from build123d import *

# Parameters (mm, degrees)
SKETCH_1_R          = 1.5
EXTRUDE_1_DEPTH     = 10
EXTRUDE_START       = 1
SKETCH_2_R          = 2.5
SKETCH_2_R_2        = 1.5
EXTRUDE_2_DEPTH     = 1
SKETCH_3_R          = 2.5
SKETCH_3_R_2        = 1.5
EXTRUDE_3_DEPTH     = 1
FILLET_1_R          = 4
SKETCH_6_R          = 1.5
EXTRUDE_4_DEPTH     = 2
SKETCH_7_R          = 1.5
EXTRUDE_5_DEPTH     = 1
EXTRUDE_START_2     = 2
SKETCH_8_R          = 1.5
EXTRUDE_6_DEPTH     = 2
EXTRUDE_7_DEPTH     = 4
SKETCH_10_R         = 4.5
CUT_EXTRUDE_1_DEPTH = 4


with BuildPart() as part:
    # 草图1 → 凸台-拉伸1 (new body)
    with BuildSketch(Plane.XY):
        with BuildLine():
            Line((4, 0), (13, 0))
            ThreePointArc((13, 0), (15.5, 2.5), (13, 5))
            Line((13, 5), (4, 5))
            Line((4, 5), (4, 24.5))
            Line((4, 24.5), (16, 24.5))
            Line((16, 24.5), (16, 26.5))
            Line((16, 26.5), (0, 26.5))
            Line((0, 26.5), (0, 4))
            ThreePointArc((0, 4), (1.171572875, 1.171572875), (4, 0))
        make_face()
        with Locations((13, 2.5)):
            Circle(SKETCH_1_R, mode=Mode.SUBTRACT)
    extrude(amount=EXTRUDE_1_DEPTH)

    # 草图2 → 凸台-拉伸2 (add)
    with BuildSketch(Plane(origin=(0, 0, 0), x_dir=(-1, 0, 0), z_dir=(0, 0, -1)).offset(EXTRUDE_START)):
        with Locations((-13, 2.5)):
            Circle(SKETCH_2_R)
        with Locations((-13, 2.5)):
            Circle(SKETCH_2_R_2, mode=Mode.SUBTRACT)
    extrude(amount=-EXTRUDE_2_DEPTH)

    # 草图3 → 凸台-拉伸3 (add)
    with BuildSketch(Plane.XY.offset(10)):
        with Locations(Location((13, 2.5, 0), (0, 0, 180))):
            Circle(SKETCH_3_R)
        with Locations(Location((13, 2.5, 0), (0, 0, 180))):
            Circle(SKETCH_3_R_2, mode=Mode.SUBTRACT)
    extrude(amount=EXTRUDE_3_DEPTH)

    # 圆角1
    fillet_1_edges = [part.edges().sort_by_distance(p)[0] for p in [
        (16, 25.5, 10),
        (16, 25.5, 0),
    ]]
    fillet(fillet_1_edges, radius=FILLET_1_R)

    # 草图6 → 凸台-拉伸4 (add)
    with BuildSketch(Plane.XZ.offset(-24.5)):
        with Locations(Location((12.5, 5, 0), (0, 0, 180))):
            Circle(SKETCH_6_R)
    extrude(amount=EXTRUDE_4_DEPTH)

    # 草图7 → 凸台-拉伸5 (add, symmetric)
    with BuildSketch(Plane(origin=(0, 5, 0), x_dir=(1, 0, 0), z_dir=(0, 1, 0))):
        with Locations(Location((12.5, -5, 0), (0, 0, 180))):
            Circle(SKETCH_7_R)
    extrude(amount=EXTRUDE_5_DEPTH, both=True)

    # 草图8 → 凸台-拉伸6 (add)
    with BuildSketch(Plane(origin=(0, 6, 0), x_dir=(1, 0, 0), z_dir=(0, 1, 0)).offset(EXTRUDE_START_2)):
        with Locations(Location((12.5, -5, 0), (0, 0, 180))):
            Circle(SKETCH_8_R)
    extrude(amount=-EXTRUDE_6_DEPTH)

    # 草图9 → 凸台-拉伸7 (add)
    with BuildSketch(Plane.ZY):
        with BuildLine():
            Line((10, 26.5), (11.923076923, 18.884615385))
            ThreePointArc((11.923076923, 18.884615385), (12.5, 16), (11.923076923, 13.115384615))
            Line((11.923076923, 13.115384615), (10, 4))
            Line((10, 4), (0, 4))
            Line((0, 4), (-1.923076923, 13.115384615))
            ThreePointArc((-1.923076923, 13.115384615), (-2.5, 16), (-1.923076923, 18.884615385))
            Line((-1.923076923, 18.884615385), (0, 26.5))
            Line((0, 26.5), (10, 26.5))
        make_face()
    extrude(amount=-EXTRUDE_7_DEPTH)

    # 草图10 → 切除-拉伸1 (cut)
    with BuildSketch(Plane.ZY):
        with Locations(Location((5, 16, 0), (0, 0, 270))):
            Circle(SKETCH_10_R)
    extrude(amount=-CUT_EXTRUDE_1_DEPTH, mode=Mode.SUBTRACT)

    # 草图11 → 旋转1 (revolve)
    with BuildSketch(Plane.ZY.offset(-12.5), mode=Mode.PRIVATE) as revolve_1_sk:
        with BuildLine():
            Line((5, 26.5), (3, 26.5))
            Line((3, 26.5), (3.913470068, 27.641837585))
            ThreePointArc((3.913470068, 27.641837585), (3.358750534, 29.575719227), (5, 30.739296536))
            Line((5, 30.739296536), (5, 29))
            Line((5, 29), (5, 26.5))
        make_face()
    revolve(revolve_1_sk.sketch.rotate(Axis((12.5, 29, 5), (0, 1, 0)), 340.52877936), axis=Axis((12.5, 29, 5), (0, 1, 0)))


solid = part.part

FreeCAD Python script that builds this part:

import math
import FreeCAD as App
import Part
import Sketcher

V = App.Vector
Q = App.Units.Quantity


def edges_at(feature, points):
    """Names of the edges that pass closest to the given points."""
    edges = feature.Shape.Edges
    near = lambda p: min(range(len(edges)), key=lambda i: edges[i].distToShape(Part.Vertex(*p))[0])
    return sorted({f"Edge{near(p) + 1}" for p in points})

doc = App.newDocument("Part")
body = doc.addObject("PartDesign::Body", "Body")

sketch1 = doc.addObject("Sketcher::SketchObject", "Sketch")
body.addObject(sketch1)
sketch1.AttachmentSupport = (doc.XY_Plane, [""])
sketch1.MapMode = "FlatFace"
sketch1.addGeometry(Part.LineSegment(V(4, 0, 0), V(13, 0, 0)), False)
sketch1.addGeometry(Part.ArcOfCircle(Part.Circle(V(13, 2.5, 0), V(0, 0, 1), 2.5), math.radians(-90), math.radians(90)), False)
sketch1.addGeometry(Part.LineSegment(V(13, 5, 0), V(4, 5, 0)), False)
sketch1.addGeometry(Part.LineSegment(V(4, 5, 0), V(4, 24.5, 0)), False)
sketch1.addGeometry(Part.LineSegment(V(4, 24.5, 0), V(16, 24.5, 0)), False)
sketch1.addGeometry(Part.LineSegment(V(16, 24.5, 0), V(16, 26.5, 0)), False)
sketch1.addGeometry(Part.LineSegment(V(16, 26.5, 0), V(0, 26.5, 0)), False)
sketch1.addGeometry(Part.LineSegment(V(0, 26.5, 0), V(0, 4, 0)), False)
sketch1.addGeometry(Part.ArcOfCircle(Part.Circle(V(4, 4, 0), V(0, 0, 1), 4), math.radians(180), math.radians(270)), False)
sketch1.addGeometry(Part.Circle(V(13, 2.5, 0), V(0, 0, 1), 1.5), False)
sketch1.addConstraint(Sketcher.Constraint("Tangent", 0, 2, 1, 1))
sketch1.addConstraint(Sketcher.Constraint("Tangent", 1, 2, 2, 1))
sketch1.addConstraint(Sketcher.Constraint("Coincident", 2, 2, 3, 1))
sketch1.addConstraint(Sketcher.Constraint("Coincident", 3, 2, 4, 1))
sketch1.addConstraint(Sketcher.Constraint("Coincident", 4, 2, 5, 1))
sketch1.addConstraint(Sketcher.Constraint("Coincident", 5, 2, 6, 1))
sketch1.addConstraint(Sketcher.Constraint("Coincident", 6, 2, 7, 1))
sketch1.addConstraint(Sketcher.Constraint("Tangent", 7, 2, 8, 1))
sketch1.addConstraint(Sketcher.Constraint("Tangent", 8, 2, 0, 1))
sketch1.addConstraint(Sketcher.Constraint("Horizontal", 0))
sketch1.addConstraint(Sketcher.Constraint("Horizontal", 2))
sketch1.addConstraint(Sketcher.Constraint("Vertical", 3))
sketch1.addConstraint(Sketcher.Constraint("Horizontal", 4))
sketch1.addConstraint(Sketcher.Constraint("Vertical", 5))
sketch1.addConstraint(Sketcher.Constraint("Horizontal", 6))
sketch1.addConstraint(Sketcher.Constraint("Vertical", 7))
sketch1.addConstraint(Sketcher.Constraint("Coincident", 9, 3, 1, 3))
sketch1.addConstraint(Sketcher.Constraint("PointOnObject", 0, 2, -1))
sketch1.addConstraint(Sketcher.Constraint("PointOnObject", 6, 2, -2))
sketch1.addConstraint(Sketcher.Constraint("Vertical", 8, 3, 2, 2))
sketch1.addConstraint(Sketcher.Constraint("Diameter", 9, Q("3 mm")))
sketch1.addConstraint(Sketcher.Constraint("Radius", 8, Q("4 mm")))
sketch1.addConstraint(Sketcher.Constraint("Radius", 1, Q("2.5 mm")))
sketch1.addConstraint(Sketcher.Constraint("DistanceX", 0, 1, 0, 2, Q("9 mm")))
sketch1.addConstraint(Sketcher.Constraint("DistanceX", 4, 1, 4, 2, Q("12 mm")))
sketch1.addConstraint(Sketcher.Constraint("DistanceY", 5, 1, 5, 2, Q("2 mm")))
sketch1.addConstraint(Sketcher.Constraint("DistanceY", 3, 1, 3, 2, Q("19.5 mm")))
pad1 = doc.addObject("PartDesign::Pad", "Pad")
body.addObject(pad1)
pad1.Profile = sketch1
pad1.Length = 10

sketch2 = doc.addObject("Sketcher::SketchObject", "Sketch001")
body.addObject(sketch2)
sketch2.AttachmentSupport = (doc.XY_Plane, [""])
sketch2.MapMode = "FlatFace"
sketch2.AttachmentOffset = App.Placement(V(0, 0, -1), App.Rotation())
sketch2.addGeometry(Part.Circle(V(13, 2.5, 0), V(0, 0, 1), 2.5), False)
sketch2.addGeometry(Part.Circle(V(13, 2.5, 0), V(0, 0, 1), 1.5), False)
sketch2.addConstraint(Sketcher.Constraint("Coincident", 1, 3, 0, 3))
sketch2.addConstraint(Sketcher.Constraint("Diameter", 0, Q("5 mm")))
sketch2.addConstraint(Sketcher.Constraint("Diameter", 1, Q("3 mm")))
sketch2.addConstraint(Sketcher.Constraint("DistanceX", -1, 1, 0, 3, Q("13 mm")))
sketch2.addConstraint(Sketcher.Constraint("DistanceY", -1, 1, 0, 3, Q("2.5 mm")))
pad2 = doc.addObject("PartDesign::Pad", "Pad001")
body.addObject(pad2)
pad2.Profile = sketch2
pad2.Length = 1

sketch3 = doc.addObject("Sketcher::SketchObject", "Sketch002")
body.addObject(sketch3)
sketch3.AttachmentSupport = (doc.XY_Plane, [""])
sketch3.MapMode = "FlatFace"
sketch3.AttachmentOffset = App.Placement(V(0, 0, 10), App.Rotation())
sketch3.addGeometry(Part.Circle(V(13, 2.5, 0), V(0, 0, 1), 2.5), False)
sketch3.addGeometry(Part.Circle(V(13, 2.5, 0), V(0, 0, 1), 1.5), False)
sketch3.addConstraint(Sketcher.Constraint("Coincident", 1, 3, 0, 3))
sketch3.addConstraint(Sketcher.Constraint("Diameter", 0, Q("5 mm")))
sketch3.addConstraint(Sketcher.Constraint("Diameter", 1, Q("3 mm")))
sketch3.addConstraint(Sketcher.Constraint("DistanceX", -1, 1, 0, 3, Q("13 mm")))
sketch3.addConstraint(Sketcher.Constraint("DistanceY", -1, 1, 0, 3, Q("2.5 mm")))
pad3 = doc.addObject("PartDesign::Pad", "Pad002")
body.addObject(pad3)
pad3.Profile = sketch3
pad3.Length = 1
doc.recompute()

fillet = doc.addObject("PartDesign::Fillet", "Fillet")
body.addObject(fillet)
fillet.Base = (pad3, edges_at(pad3, [(16, 25.5, 10), (16, 25.5, 0)]))
fillet.Radius = 4

sketch4 = doc.addObject("Sketcher::SketchObject", "Sketch003")
body.addObject(sketch4)
sketch4.AttachmentSupport = (doc.XZ_Plane, [""])
sketch4.MapMode = "FlatFace"
sketch4.AttachmentOffset = App.Placement(V(0, 0, -24.5), App.Rotation())
sketch4.addGeometry(Part.Circle(V(12.5, 5, 0), V(0, 0, 1), 1.5), False)
sketch4.addConstraint(Sketcher.Constraint("Diameter", 0, Q("3 mm")))
sketch4.addConstraint(Sketcher.Constraint("DistanceY", -1, 1, 0, 3, Q("5 mm")))
sketch4.addConstraint(Sketcher.Constraint("DistanceX", -1, 1, 0, 3, Q("12.5 mm")))
pad4 = doc.addObject("PartDesign::Pad", "Pad003")
body.addObject(pad4)
pad4.Profile = sketch4
pad4.Length = 2

sketch5 = doc.addObject("Sketcher::SketchObject", "Sketch004")
body.addObject(sketch5)
sketch5.AttachmentSupport = (doc.XZ_Plane, [""])
sketch5.MapMode = "FlatFace"
sketch5.AttachmentOffset = App.Placement(V(0, 0, -5), App.Rotation())
sketch5.addGeometry(Part.Circle(V(12.5, 5, 0), V(0, 0, 1), 1.5), False)
sketch5.addConstraint(Sketcher.Constraint("Diameter", 0, Q("3 mm")))
sketch5.addConstraint(Sketcher.Constraint("DistanceY", -1, 1, 0, 3, Q("5 mm")))
sketch5.addConstraint(Sketcher.Constraint("DistanceX", -1, 1, 0, 3, Q("12.5 mm")))
pad5 = doc.addObject("PartDesign::Pad", "Pad004")
body.addObject(pad5)
pad5.Profile = sketch5
pad5.Length = 2
pad5.Midplane = True

sketch6 = doc.addObject("Sketcher::SketchObject", "Sketch005")
body.addObject(sketch6)
sketch6.AttachmentSupport = (doc.XZ_Plane, [""])
sketch6.MapMode = "FlatFace"
sketch6.AttachmentOffset = App.Placement(V(0, 0, -8), App.Rotation())
sketch6.addGeometry(Part.Circle(V(12.5, 5, 0), V(0, 0, 1), 1.5), False)
sketch6.addConstraint(Sketcher.Constraint("Diameter", 0, Q("3 mm")))
sketch6.addConstraint(Sketcher.Constraint("DistanceY", -1, 1, 0, 3, Q("5 mm")))
sketch6.addConstraint(Sketcher.Constraint("DistanceX", -1, 1, 0, 3, Q("12.5 mm")))
pad6 = doc.addObject("PartDesign::Pad", "Pad005")
body.addObject(pad6)
pad6.Profile = sketch6
pad6.Length = 2

sketch7 = doc.addObject("Sketcher::SketchObject", "Sketch006")
body.addObject(sketch7)
sketch7.AttachmentSupport = (doc.YZ_Plane, [""])
sketch7.MapMode = "FlatFace"
sketch7.addGeometry(Part.LineSegment(V(18.884615, 11.923077, 0), V(26.5, 10, 0)), False)
sketch7.addGeometry(Part.LineSegment(V(26.5, 10, 0), V(26.5, 0, 0)), False)
sketch7.addGeometry(Part.LineSegment(V(26.5, 0, 0), V(18.884615, -1.923077, 0)), False)
sketch7.addGeometry(Part.ArcOfCircle(Part.Circle(V(16, 5, 0), V(0, 0, 1), 7.5), math.radians(-112.619865), math.radians(-67.380135)), False)
sketch7.addGeometry(Part.LineSegment(V(13.115385, -1.923077, 0), V(4, 0, 0)), False)
sketch7.addGeometry(Part.LineSegment(V(4, 0, 0), V(4, 10, 0)), False)
sketch7.addGeometry(Part.LineSegment(V(4, 10, 0), V(13.115385, 11.923077, 0)), False)
sketch7.addGeometry(Part.ArcOfCircle(Part.Circle(V(16, 5, 0), V(0, 0, 1), 7.5), math.radians(67.380135), math.radians(112.619865)), False)
sketch7.addConstraint(Sketcher.Constraint("Coincident", 0, 2, 1, 1))
sketch7.addConstraint(Sketcher.Constraint("Coincident", 1, 2, 2, 1))
sketch7.addConstraint(Sketcher.Constraint("Coincident", 2, 2, 3, 2))
sketch7.addConstraint(Sketcher.Constraint("Coincident", 3, 1, 4, 1))
sketch7.addConstraint(Sketcher.Constraint("Coincident", 4, 2, 5, 1))
sketch7.addConstraint(Sketcher.Constraint("Coincident", 5, 2, 6, 1))
sketch7.addConstraint(Sketcher.Constraint("Coincident", 6, 2, 7, 2))
sketch7.addConstraint(Sketcher.Constraint("Coincident", 7, 1, 0, 1))
sketch7.addConstraint(Sketcher.Constraint("Vertical", 1))
sketch7.addConstraint(Sketcher.Constraint("Vertical", 5))
sketch7.addConstraint(Sketcher.Constraint("Coincident", 7, 3, 3, 3))
sketch7.addConstraint(Sketcher.Constraint("Equal", 3, 7))
sketch7.addConstraint(Sketcher.Constraint("PointOnObject", 1, 2, -1))
sketch7.addConstraint(Sketcher.Constraint("PointOnObject", 4, 2, -1))
sketch7.addConstraint(Sketcher.Constraint("Horizontal", 2, 2, 3, 1))
sketch7.addConstraint(Sketcher.Constraint("Horizontal", 0, 2, 5, 2))
sketch7.addConstraint(Sketcher.Constraint("Horizontal", 6, 2, 7, 1))
sketch7.addConstraint(Sketcher.Constraint("Vertical", 3, 1, 6, 2))
sketch7.addConstraint(Sketcher.Constraint("Equal", 0, 2))
sketch7.addConstraint(Sketcher.Constraint("Radius", 3, Q("7.5 mm")))
sketch7.addConstraint(Sketcher.Constraint("DistanceY", 1, 2, 1, 1, Q("10 mm")))
sketch7.addConstraint(Sketcher.Constraint("DistanceX", -1, 1, 3, 3, Q("16 mm")))
sketch7.addConstraint(Sketcher.Constraint("DistanceX", -1, 1, 4, 2, Q("4 mm")))
sketch7.addConstraint(Sketcher.Constraint("DistanceX", -1, 1, 0, 2, Q("26.5 mm")))
sketch7.addConstraint(Sketcher.Constraint("DistanceX", 3, 1, 2, 2, Q("5.769231 mm")))
pad7 = doc.addObject("PartDesign::Pad", "Pad006")
body.addObject(pad7)
pad7.Profile = sketch7
pad7.Length = 4

sketch8 = doc.addObject("Sketcher::SketchObject", "Sketch007")
body.addObject(sketch8)
sketch8.AttachmentSupport = (doc.YZ_Plane, [""])
sketch8.MapMode = "FlatFace"
sketch8.addGeometry(Part.Circle(V(16, 5, 0), V(0, 0, 1), 4.5), False)
sketch8.addConstraint(Sketcher.Constraint("Diameter", 0, Q("9 mm")))
sketch8.addConstraint(Sketcher.Constraint("DistanceX", -1, 1, 0, 3, Q("16 mm")))
sketch8.addConstraint(Sketcher.Constraint("DistanceY", -1, 1, 0, 3, Q("5 mm")))
pocket1 = doc.addObject("PartDesign::Pocket", "Pocket")
body.addObject(pocket1)
pocket1.Profile = sketch8
pocket1.Length = 4
pocket1.Reversed = True

sketch9 = doc.addObject("Sketcher::SketchObject", "Sketch008")
body.addObject(sketch9)
sketch9.AttachmentSupport = (doc.YZ_Plane, [""])
sketch9.MapMode = "FlatFace"
sketch9.AttachmentOffset = App.Placement(V(0, 0, 12.5), App.Rotation())
sketch9.addGeometry(Part.LineSegment(V(26.5, 3, 0), V(26.5, 5, 0)), False)
sketch9.addGeometry(Part.LineSegment(V(26.5, 5, 0), V(30.739297, 5, 0)), False)
sketch9.addGeometry(Part.ArcOfCircle(Part.Circle(V(29, 5, 0), V(0, 0, 1), 1.739297), math.radians(-141.340192), math.radians(0)), False)
sketch9.addGeometry(Part.LineSegment(V(27.641838, 3.91347, 0), V(26.5, 3, 0)), False)
sketch9.addGeometry(Part.LineSegment(V(26.5, 5, 0), V(30.739297, 5, 0)), True)
sketch9.addConstraint(Sketcher.Constraint("Coincident", 0, 2, 1, 1))
sketch9.addConstraint(Sketcher.Constraint("Coincident", 1, 2, 2, 2))
sketch9.addConstraint(Sketcher.Constraint("Coincident", 2, 1, 3, 1))
sketch9.addConstraint(Sketcher.Constraint("Coincident", 3, 2, 0, 1))
sketch9.addConstraint(Sketcher.Constraint("Vertical", 0))
sketch9.addConstraint(Sketcher.Constraint("Horizontal", 1))
sketch9.addConstraint(Sketcher.Constraint("Horizontal", 4))
sketch9.addConstraint(Sketcher.Constraint("Coincident", 4, 1, 0, 2))
sketch9.addConstraint(Sketcher.Constraint("Horizontal", 2, 3, 0, 2))
sketch9.addConstraint(Sketcher.Constraint("Equal", 1, 4))
sketch9.addConstraint(Sketcher.Constraint("DistanceY", 0, 1, 0, 2, Q("2 mm")))
sketch9.addConstraint(Sketcher.Constraint("DistanceX", -1, 1, 2, 3, Q("29 mm")))
sketch9.addConstraint(Sketcher.Constraint("DistanceY", -1, 1, 2, 3, Q("5 mm")))
sketch9.addConstraint(Sketcher.Constraint("DistanceX", -1, 1, 0, 2, Q("26.5 mm")))
sketch9.addConstraint(Sketcher.Constraint("Radius", 2, Q("1.739297 mm")))
sketch9.addConstraint(Sketcher.Constraint("DistanceY", -1, 1, 2, 1, Q("3.91347 mm")))
revolution = doc.addObject("PartDesign::Revolution", "Revolution")
body.addObject(revolution)
revolution.Profile = sketch9
revolution.ReferenceAxis = (sketch9, ["Axis0"])
revolution.Angle = 360

doc.recompute()
